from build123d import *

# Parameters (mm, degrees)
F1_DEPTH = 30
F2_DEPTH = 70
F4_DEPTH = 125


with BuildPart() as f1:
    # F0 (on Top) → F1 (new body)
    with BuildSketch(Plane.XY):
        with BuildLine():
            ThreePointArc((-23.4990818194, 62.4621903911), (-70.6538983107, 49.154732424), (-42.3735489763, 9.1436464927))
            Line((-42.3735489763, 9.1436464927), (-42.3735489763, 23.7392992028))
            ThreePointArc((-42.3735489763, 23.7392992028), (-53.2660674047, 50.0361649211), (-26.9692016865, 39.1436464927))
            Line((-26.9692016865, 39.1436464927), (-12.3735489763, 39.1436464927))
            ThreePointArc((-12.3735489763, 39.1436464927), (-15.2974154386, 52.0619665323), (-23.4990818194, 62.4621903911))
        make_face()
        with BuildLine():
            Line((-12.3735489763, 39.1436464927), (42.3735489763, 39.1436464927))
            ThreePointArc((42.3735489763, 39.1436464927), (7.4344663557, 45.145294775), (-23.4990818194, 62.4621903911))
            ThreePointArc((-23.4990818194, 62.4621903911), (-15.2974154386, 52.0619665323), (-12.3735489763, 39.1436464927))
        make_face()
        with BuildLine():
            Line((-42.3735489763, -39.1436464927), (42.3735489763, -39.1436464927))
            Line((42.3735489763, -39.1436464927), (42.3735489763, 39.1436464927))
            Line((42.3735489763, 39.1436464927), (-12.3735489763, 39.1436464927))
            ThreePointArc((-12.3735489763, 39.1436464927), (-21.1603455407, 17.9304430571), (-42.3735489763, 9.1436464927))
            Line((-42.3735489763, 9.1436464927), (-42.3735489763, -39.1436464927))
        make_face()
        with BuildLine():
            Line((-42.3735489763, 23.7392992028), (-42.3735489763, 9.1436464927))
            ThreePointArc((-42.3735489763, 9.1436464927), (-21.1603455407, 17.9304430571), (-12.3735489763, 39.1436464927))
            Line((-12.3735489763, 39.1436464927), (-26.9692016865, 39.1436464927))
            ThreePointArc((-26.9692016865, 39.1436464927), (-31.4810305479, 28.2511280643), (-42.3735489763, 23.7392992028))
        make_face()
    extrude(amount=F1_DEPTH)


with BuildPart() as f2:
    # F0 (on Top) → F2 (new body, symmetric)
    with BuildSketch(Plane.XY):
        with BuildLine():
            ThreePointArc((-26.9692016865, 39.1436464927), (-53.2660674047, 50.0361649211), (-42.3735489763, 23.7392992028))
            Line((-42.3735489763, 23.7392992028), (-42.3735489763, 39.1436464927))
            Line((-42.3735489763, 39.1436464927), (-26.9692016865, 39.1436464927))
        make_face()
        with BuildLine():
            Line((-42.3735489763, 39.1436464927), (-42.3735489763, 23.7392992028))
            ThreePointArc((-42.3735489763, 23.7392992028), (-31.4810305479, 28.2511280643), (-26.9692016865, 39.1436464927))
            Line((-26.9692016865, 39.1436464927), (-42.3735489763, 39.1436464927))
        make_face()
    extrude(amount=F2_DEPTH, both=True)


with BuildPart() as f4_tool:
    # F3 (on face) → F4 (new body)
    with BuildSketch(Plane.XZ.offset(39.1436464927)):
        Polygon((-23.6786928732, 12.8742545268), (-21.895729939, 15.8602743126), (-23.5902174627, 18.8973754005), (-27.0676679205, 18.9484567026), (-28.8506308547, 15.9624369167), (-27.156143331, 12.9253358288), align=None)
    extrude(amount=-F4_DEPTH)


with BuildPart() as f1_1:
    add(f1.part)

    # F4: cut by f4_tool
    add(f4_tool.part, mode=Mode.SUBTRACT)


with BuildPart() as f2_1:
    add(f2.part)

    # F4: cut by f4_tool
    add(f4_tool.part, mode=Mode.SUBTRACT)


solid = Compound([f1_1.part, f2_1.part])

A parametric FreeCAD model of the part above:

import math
import FreeCAD as App
import Part
import Sketcher

doc = App.newDocument("Part")
body = doc.addObject("PartDesign::Body", "Body")

# Sketch on XY plane
sketch1 = body.newObject("Sketcher::SketchObject", "Sketch")
sketch1.AttachmentSupport = (doc.getObject("XY_Plane"), [""])
sketch1.MapMode = "FlatFace"
sketch1.addGeometry([
    Part.ArcOfCircle(Part.Circle(App.Vector(-42.373549, 39.143646, 0), App.Vector(0, 0, 1), 30), math.radians(51.012642), math.radians(270)),  # 0
    Part.LineSegment(App.Vector(-42.373549, 9.143646, 0), App.Vector(-42.373549, -39.143646, 0)),  # 1
    Part.LineSegment(App.Vector(-42.373549, -39.143646, 0), App.Vector(42.373549, -39.143646, 0)),  # 2
    Part.LineSegment(App.Vector(42.373549, -39.143646, 0), App.Vector(42.373549, 39.143646, 0)),  # 3
    Part.ArcOfCircle(Part.Circle(App.Vector(42.373549, 143.844823, 0), App.Vector(0, 0, 1), 104.701177), math.radians(-128.987358), math.radians(-90)),  # 4
    Part.ArcOfCircle(Part.Circle(App.Vector(-42.373549, 39.143646, 0), App.Vector(0, 0, 1), 15.404347), math.radians(0), math.radians(270)),  # 5
    Part.ArcOfCircle(Part.Circle(App.Vector(-42.373549, 39.143646, 0), App.Vector(0, 0, 1), 15.404347), math.radians(-90), math.radians(0)),  # 6
], False)
sketch1.addConstraint([
    Sketcher.Constraint("Coincident", 0, 2, 1, 1),
    Sketcher.Constraint("Coincident", 1, 2, 2, 1),
    Sketcher.Constraint("Coincident", 2, 2, 3, 1),
    Sketcher.Constraint("Coincident", 3, 2, 4, 2),
    Sketcher.Constraint("Tangent", 4, 1, 0, 1),
    Sketcher.Constraint("Tangent", 5, 1, 6, 2),
    Sketcher.Constraint("Coincident", 6, 1, 5, 2),
    Sketcher.Constraint("Vertical", 1),
    Sketcher.Constraint("Horizontal", 2),
    Sketcher.Constraint("Vertical", 3),
    Sketcher.Constraint("Coincident", 5, 3, 0, 3),
    Sketcher.Constraint("Symmetric", 1, 2, 3, 2, -1, 1),
    Sketcher.Constraint("Horizontal", 6, 3, 3, 2),
    Sketcher.Constraint("Horizontal", 3, 2, 5, 1),
    Sketcher.Constraint("Vertical", 6, 3, 0, 2),
    Sketcher.Constraint("Vertical", 4, 3, 2, 2),
    Sketcher.Constraint("Vertical", 1, 2, 6, 1),
    Sketcher.Constraint("Radius", 0, 30.0),
    Sketcher.Constraint("Radius", 4, 104.701177),
    Sketcher.Constraint("Radius", 5, 15.404347),
    Sketcher.Constraint("DistanceY", -1, 1, 6, 1, 23.739299),
])
pad1 = body.newObject("PartDesign::Pad", "Pad")
pad1.Profile = sketch1
pad1.Length = 30
body2 = doc.addObject("PartDesign::Body", "Body001")

# Sketch on XY plane
sketch2 = body2.newObject("Sketcher::SketchObject", "Sketch001")
sketch2.AttachmentSupport = (doc.getObject("XY_Plane001"), [""])
sketch2.MapMode = "FlatFace"
sketch2.addGeometry([
    Part.ArcOfCircle(Part.Circle(App.Vector(-42.373549, 39.143646, 0), App.Vector(0, 0, 1), 15.404347), math.radians(0), math.radians(270)),
    Part.ArcOfCircle(Part.Circle(App.Vector(-42.373549, 39.143646, 0), App.Vector(0, 0, 1), 15.404347), math.radians(-90), math.radians(0)),
], False)
sketch2.addConstraint([
    Sketcher.Constraint("Tangent", 0, 1, 1, 2),
    Sketcher.Constraint("Coincident", 1, 1, 0, 2),
    Sketcher.Constraint("Horizontal", 1, 3, 0, 1),
    Sketcher.Constraint("Vertical", 0, 3, 1, 1),
    Sketcher.Constraint("Radius", 0, 15.404347),
    Sketcher.Constraint("DistanceX", 0, 1, -1, 1, 26.969202),
    Sketcher.Constraint("DistanceY", -1, 1, 1, 1, 23.739299),
])
pad2 = body2.newObject("PartDesign::Pad", "Pad001")
pad2.Profile = sketch2
pad2.Length = 140
pad2.Midplane = True
body3 = doc.addObject("PartDesign::Body", "Body002")

# Sketch on XZ plane
sketch3 = body3.newObject("Sketcher::SketchObject", "Sketch002")
sketch3.AttachmentSupport = (doc.getObject("XZ_Plane002"), [""])
sketch3.MapMode = "FlatFace"
sketch3.AttachmentOffset = App.Placement(App.Vector(0, 0, 39.143646), App.Rotation())
sketch3.addGeometry([
    Part.LineSegment(App.Vector(-23.678693, 12.874255, 0), App.Vector(-21.89573, 15.860274, 0)),  # 0
    Part.LineSegment(App.Vector(-21.89573, 15.860274, 0), App.Vector(-23.590217, 18.897375, 0)),  # 1
    Part.LineSegment(App.Vector(-23.590217, 18.897375, 0), App.Vector(-27.067668, 18.948457, 0)),  # 2
    Part.LineSegment(App.Vector(-27.067668, 18.948457, 0), App.Vector(-28.850631, 15.962437, 0)),  # 3
    Part.LineSegment(App.Vector(-28.850631, 15.962437, 0), App.Vector(-27.156143, 12.925336, 0)),  # 4
    Part.LineSegment(App.Vector(-27.156143, 12.925336, 0), App.Vector(-23.678693, 12.874255, 0)),  # 5
], False)
sketch3.addConstraint([
    Sketcher.Constraint("Coincident", 0, 2, 1, 1),
    Sketcher.Constraint("Coincident", 1, 2, 2, 1),
    Sketcher.Constraint("Coincident", 2, 2, 3, 1),
    Sketcher.Constraint("Coincident", 3, 2, 4, 1),
    Sketcher.Constraint("Coincident", 4, 2, 5, 1),
    Sketcher.Constraint("Coincident", 5, 2, 0, 1),
    Sketcher.Constraint("Parallel", 0, 3),
    Sketcher.Constraint("Parallel", 1, 4),
    Sketcher.Constraint("Parallel", 2, 5),
    Sketcher.Constraint("Equal", 0, 1),
    Sketcher.Constraint("Equal", 1, 2),
    Sketcher.Constraint("Equal", 2, 3),
    Sketcher.Constraint("DistanceY", 0, 2, 1, 2, 3.037101),
    Sketcher.Constraint("DistanceX", 3, 2, 0, 2, 6.954901),
    Sketcher.Constraint("DistanceX", 0, 2, -1, 1, 21.89573),
    Sketcher.Constraint("DistanceX", 2, 2, 1, 2, 3.47745),
    Sketcher.Constraint("DistanceY", 1, 2, 2, 2, 0.051081),
    Sketcher.Constraint("DistanceY", -1, 1, 0, 2, 15.860274),
])
pad3 = body3.newObject("PartDesign::Pad", "Pad002")
pad3.Profile = sketch3
pad3.Length = 125
pad3.Reversed = True
doc.recompute()

body4 = doc.addObject("PartDesign::Body", "Body003")
body4.BaseFeature = body3
boolean = body.newObject("PartDesign::Boolean", "Boolean")
boolean.Type = "Cut"
boolean.addObjects([body4])
doc.recompute()

boolean2 = body2.newObject("PartDesign::Boolean", "Boolean001")
boolean2.Type = "Cut"
boolean2.addObjects([body3])

doc.recompute()
